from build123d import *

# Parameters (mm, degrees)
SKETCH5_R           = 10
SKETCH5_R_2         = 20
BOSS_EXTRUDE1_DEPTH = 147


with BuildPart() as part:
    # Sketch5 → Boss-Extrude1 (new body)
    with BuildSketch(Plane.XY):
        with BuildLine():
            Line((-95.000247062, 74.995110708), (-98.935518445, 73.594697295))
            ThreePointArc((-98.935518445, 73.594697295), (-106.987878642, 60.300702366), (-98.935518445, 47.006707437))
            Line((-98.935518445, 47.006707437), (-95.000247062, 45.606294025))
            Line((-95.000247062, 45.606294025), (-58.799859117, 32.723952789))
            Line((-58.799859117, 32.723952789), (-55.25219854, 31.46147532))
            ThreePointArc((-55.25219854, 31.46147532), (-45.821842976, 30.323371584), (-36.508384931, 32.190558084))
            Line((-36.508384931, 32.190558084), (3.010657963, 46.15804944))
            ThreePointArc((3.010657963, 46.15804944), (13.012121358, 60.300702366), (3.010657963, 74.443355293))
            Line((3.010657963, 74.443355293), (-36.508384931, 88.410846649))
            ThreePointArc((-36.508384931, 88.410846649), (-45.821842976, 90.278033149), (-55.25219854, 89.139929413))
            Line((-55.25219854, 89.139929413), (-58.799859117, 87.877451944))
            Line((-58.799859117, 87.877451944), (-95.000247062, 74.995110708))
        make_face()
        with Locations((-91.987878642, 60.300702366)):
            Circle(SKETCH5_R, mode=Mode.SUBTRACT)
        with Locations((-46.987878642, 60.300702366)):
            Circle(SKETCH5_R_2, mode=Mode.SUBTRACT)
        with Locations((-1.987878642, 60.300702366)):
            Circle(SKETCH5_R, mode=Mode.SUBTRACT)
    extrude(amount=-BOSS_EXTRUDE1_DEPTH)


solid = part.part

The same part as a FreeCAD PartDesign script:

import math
import FreeCAD as App
import Part
import Sketcher

doc = App.newDocument("Part")
body = doc.addObject("PartDesign::Body", "Body")

sketch1 = body.newObject("Sketcher::SketchObject", "Sketch")
sketch1.AttachmentSupport = (doc.getObject("XY_Plane"), [""])
sketch1.MapMode = "FlatFace"
sketch1.addGeometry(Part.LineSegment(App.Vector(-95, 75, 0), App.Vector(-98.9, 73.6, 0)), False)
sketch1.addGeometry(Part.ArcOfCircle(Part.Circle(App.Vector(-92, 60.3, 0), App.Vector(0, 0, 1), 15), math.radians(118), math.radians(242)), False)
sketch1.addGeometry(Part.LineSegment(App.Vector(-98.9, 47, 0), App.Vector(-95, 45.6, 0)), False)
sketch1.addGeometry(Part.LineSegment(App.Vector(-95, 45.6, 0), App.Vector(-58.8, 32.7, 0)), False)
sketch1.addGeometry(Part.LineSegment(App.Vector(-58.8, 32.7, 0), App.Vector(-55.3, 31.5, 0)), False)
sketch1.addGeometry(Part.ArcOfCircle(Part.Circle(App.Vector(-47, 60.3, 0), App.Vector(0, 0, 1), 30), math.radians(-106), math.radians(-70)), False)
sketch1.addGeometry(Part.LineSegment(App.Vector(-36.5, 32.2, 0), App.Vector(3, 46.2, 0)), False)
sketch1.addGeometry(Part.ArcOfCircle(Part.Circle(App.Vector(-2, 60.3, 0), App.Vector(0, 0, 1), 15), math.radians(-71), math.radians(71)), False)
sketch1.addGeometry(Part.LineSegment(App.Vector(3, 74.4, 0), App.Vector(-36.5, 88.4, 0)), False)
sketch1.addGeometry(Part.ArcOfCircle(Part.Circle(App.Vector(-47, 60.3, 0), App.Vector(0, 0, 1), 30), math.radians(70), math.radians(106)), False)
sketch1.addGeometry(Part.LineSegment(App.Vector(-55.3, 89.1, 0), App.Vector(-58.8, 87.9, 0)), False)
sketch1.addGeometry(Part.LineSegment(App.Vector(-58.8, 87.9, 0), App.Vector(-95, 75, 0)), False)
sketch1.addGeometry(Part.Circle(App.Vector(-92, 60.3, 0), App.Vector(0, 0, 1), 10), False)
sketch1.addGeometry(Part.Circle(App.Vector(-47, 60.3, 0), App.Vector(0, 0, 1), 20), False)
sketch1.addGeometry(Part.Circle(App.Vector(-2, 60.3, 0), App.Vector(0, 0, 1), 10), False)
sketch1.addConstraint(Sketcher.Constraint("Coincident", 0, 2, 1, 1))
sketch1.addConstraint(Sketcher.Constraint("Coincident", 1, 2, 2, 1))
sketch1.addConstraint(Sketcher.Constraint("Coincident", 2, 2, 3, 1))
sketch1.addConstraint(Sketcher.Constraint("Coincident", 3, 2, 4, 1))
sketch1.addConstraint(Sketcher.Constraint("Coincident", 4, 2, 5, 1))
sketch1.addConstraint(Sketcher.Constraint("Coincident", 5, 2, 6, 1))
sketch1.addConstraint(Sketcher.Constraint("Tangent", 6, 2, 7, 1))
sketch1.addConstraint(Sketcher.Constraint("Tangent", 7, 2, 8, 1))
sketch1.addConstraint(Sketcher.Constraint("Coincident", 8, 2, 9, 1))
sketch1.addConstraint(Sketcher.Constraint("Coincident", 9, 2, 10, 1))
sketch1.addConstraint(Sketcher.Constraint("Coincident", 10, 2, 11, 1))
sketch1.addConstraint(Sketcher.Constraint("Coincident", 11, 2, 0, 1))
sketch1.addConstraint(Sketcher.Constraint("Coincident", 9, 3, 5, 3))
sketch1.addConstraint(Sketcher.Constraint("Coincident", 12, 3, 1, 3))
sketch1.addConstraint(Sketcher.Constraint("Coincident", 13, 3, 5, 3))
sketch1.addConstraint(Sketcher.Constraint("Coincident", 14, 3, 7, 3))
sketch1.addConstraint(Sketcher.Constraint("Equal", 1, 7))
sketch1.addConstraint(Sketcher.Constraint("Equal", 5, 9))
sketch1.addConstraint(Sketcher.Constraint("Equal", 12, 14))
sketch1.addConstraint(Sketcher.Constraint("Parallel", 2, 3))
sketch1.addConstraint(Sketcher.Constraint("Parallel", 3, 4))
sketch1.addConstraint(Sketcher.Constraint("Parallel", 0, 10))
sketch1.addConstraint(Sketcher.Constraint("Parallel", 10, 11))
sketch1.addConstraint(Sketcher.Constraint("Horizontal", 1, 3, 5, 3))
sketch1.addConstraint(Sketcher.Constraint("Horizontal", 5, 3, 7, 3))
sketch1.addConstraint(Sketcher.Constraint("Vertical", 0, 2, 1, 2))
sketch1.addConstraint(Sketcher.Constraint("Vertical", 5, 2, 8, 2))
sketch1.addConstraint(Sketcher.Constraint("Vertical", 4, 2, 9, 2))
sketch1.addConstraint(Sketcher.Constraint("Vertical", 3, 2, 10, 2))
sketch1.addConstraint(Sketcher.Constraint("Vertical", 2, 2, 11, 2))
sketch1.addConstraint(Sketcher.Constraint("Diameter", 12, 20.0))
sketch1.addConstraint(Sketcher.Constraint("Diameter", 13, 40.0))
sketch1.addConstraint(Sketcher.Constraint("Radius", 1, 15.0))
sketch1.addConstraint(Sketcher.Constraint("Radius", 5, 30.0))
sketch1.addConstraint(Sketcher.Constraint("DistanceX", 1, 3, 5, 3, 45.0))
sketch1.addConstraint(Sketcher.Constraint("DistanceX", 5, 3, 7, 3, 45.0))
sketch1.addConstraint(Sketcher.Constraint("Distance", 4, 3.7656))
sketch1.addConstraint(Sketcher.Constraint("DistanceX", 4, 2, -1, 1, 55.252199))
sketch1.addConstraint(Sketcher.Constraint("Distance", 6, 41.914742))
sketch1.addConstraint(Sketcher.Constraint("DistanceX", 1, 3, -1, 1, 91.987879))
sketch1.addConstraint(Sketcher.Constraint("DistanceX", 0, 2, -1, 1, 98.935518))
sketch1.addConstraint(Sketcher.Constraint("DistanceY", -1, 1, 5, 2, 32.190558))
sketch1.addConstraint(Sketcher.Constraint("DistanceY", -1, 1, 11, 2, 74.995111))
pad1 = body.newObject("PartDesign::Pad", "Pad")
pad1.Profile = sketch1
pad1.Length = 147
pad1.Reversed = True

doc.recompute()
